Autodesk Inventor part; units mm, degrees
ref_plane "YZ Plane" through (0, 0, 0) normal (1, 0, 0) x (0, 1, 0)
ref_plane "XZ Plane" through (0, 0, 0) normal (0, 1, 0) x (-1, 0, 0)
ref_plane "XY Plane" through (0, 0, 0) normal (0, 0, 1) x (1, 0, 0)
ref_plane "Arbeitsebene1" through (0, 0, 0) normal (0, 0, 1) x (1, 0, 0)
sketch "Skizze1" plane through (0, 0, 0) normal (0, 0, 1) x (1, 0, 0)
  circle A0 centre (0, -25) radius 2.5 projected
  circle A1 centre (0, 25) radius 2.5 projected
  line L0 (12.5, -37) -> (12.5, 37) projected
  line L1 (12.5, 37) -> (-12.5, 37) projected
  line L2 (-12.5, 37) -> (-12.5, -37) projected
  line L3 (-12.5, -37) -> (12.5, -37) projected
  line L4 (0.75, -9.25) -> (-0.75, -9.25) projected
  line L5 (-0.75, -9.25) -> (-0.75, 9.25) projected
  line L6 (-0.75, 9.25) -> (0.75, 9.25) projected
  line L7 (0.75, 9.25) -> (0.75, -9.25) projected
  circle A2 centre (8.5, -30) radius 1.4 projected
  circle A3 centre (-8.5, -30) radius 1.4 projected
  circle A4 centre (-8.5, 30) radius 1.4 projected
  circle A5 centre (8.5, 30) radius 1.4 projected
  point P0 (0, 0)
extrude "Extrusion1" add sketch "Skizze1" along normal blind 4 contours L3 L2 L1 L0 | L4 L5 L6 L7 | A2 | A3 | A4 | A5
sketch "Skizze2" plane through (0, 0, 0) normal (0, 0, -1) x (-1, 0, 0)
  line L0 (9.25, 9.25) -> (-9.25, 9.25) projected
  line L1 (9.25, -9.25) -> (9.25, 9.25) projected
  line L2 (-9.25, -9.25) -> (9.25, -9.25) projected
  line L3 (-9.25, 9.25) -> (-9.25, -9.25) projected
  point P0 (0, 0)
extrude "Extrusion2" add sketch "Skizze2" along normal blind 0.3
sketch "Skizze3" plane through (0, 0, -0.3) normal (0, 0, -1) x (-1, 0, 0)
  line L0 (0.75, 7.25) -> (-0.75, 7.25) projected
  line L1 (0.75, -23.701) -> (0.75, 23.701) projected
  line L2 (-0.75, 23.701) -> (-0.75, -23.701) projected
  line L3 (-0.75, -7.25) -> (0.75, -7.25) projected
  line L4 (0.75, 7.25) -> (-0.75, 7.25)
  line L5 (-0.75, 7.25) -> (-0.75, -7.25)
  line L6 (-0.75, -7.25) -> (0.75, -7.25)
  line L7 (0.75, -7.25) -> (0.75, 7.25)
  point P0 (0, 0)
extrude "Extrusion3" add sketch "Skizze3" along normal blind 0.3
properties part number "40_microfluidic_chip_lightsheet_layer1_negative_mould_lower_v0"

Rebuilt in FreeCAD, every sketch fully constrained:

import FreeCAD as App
import Part
import Sketcher
from FreeCAD import Vector

doc = App.newDocument("Part")
body = doc.addObject("PartDesign::Body", "Body")

# Sketch on XY plane
sketch1 = body.newObject("Sketcher::SketchObject", "Sketch")
sketch1.AttachmentSupport = (doc.getObject("XY_Plane"), [""])
sketch1.MapMode = "FlatFace"
sketch1.addGeometry([
    Part.LineSegment(Vector(-12.5, -37, 0), Vector(12.5, -37, 0)),  # 0
    Part.LineSegment(Vector(12.5, -37, 0), Vector(12.5, 37, 0)),  # 1
    Part.LineSegment(Vector(12.5, 37, 0), Vector(-12.5, 37, 0)),  # 2
    Part.LineSegment(Vector(-12.5, 37, 0), Vector(-12.5, -37, 0)),  # 3
    Part.Circle(Vector(0, -25, 0), Vector(0, 0, 1), 2.5),  # 4
    Part.Circle(Vector(0, 25, 0), Vector(0, 0, 1), 2.5),  # 5
], False)
sketch1.addConstraint([
    Sketcher.Constraint("Coincident", 0, 2, 1, 1),
    Sketcher.Constraint("Coincident", 1, 2, 2, 1),
    Sketcher.Constraint("Coincident", 2, 2, 3, 1),
    Sketcher.Constraint("Coincident", 3, 2, 0, 1),
    Sketcher.Constraint("Horizontal", 0),
    Sketcher.Constraint("Vertical", 1),
    Sketcher.Constraint("Horizontal", 2),
    Sketcher.Constraint("Vertical", 3),
    Sketcher.Constraint("Equal", 4, 5),
    Sketcher.Constraint("Symmetric", 4, 3, 5, 3, -1, 1),
    Sketcher.Constraint("Symmetric", 0, 2, 2, 2, -1, 1),
    Sketcher.Constraint("PointOnObject", 4, 3, -2),
    Sketcher.Constraint("Diameter", 4, 5.0),
    Sketcher.Constraint("DistanceX", 0, 1, 0, 2, 25.0),
    Sketcher.Constraint("DistanceY", 1, 1, 1, 2, 74.0),
    Sketcher.Constraint("DistanceY", 4, 3, -1, 1, 25.0),
])
pad1 = body.newObject("PartDesign::Pad", "Pad")
pad1.Profile = sketch1
pad1.Length = 4

# Sketch on XY plane
sketch2 = body.newObject("Sketcher::SketchObject", "Sketch001")
sketch2.AttachmentSupport = (doc.getObject("XY_Plane"), [""])
sketch2.MapMode = "FlatFace"
sketch2.addGeometry([
    Part.LineSegment(Vector(-9, -9, 0), Vector(-9, 9, 0)),
    Part.LineSegment(Vector(-9, 9, 0), Vector(9, 9, 0)),
    Part.LineSegment(Vector(9, 9, 0), Vector(9, -9, 0)),
    Part.LineSegment(Vector(9, -9, 0), Vector(-9, -9, 0)),
], False)
sketch2.addConstraint([
    Sketcher.Constraint("Coincident", 0, 2, 1, 1),
    Sketcher.Constraint("Coincident", 1, 2, 2, 1),
    Sketcher.Constraint("Coincident", 2, 2, 3, 1),
    Sketcher.Constraint("Coincident", 3, 2, 0, 1),
    Sketcher.Constraint("Vertical", 0),
    Sketcher.Constraint("Horizontal", 1),
    Sketcher.Constraint("Vertical", 2),
    Sketcher.Constraint("Horizontal", 3),
    Sketcher.Constraint("Symmetric", 0, 2, 2, 2, -1, 1),
    Sketcher.Constraint("Equal", 3, 0),
    Sketcher.Constraint("DistanceX", 1, 1, 1, 2, 18.5),
])
pad2 = body.newObject("PartDesign::Pad", "Pad001")
pad2.Profile = sketch2
pad2.Length = 0.3
pad2.Reversed = True

# Sketch on XY plane
sketch3 = body.newObject("Sketcher::SketchObject", "Sketch002")
sketch3.AttachmentSupport = (doc.getObject("XY_Plane"), [""])
sketch3.MapMode = "FlatFace"
sketch3.AttachmentOffset = App.Placement(Vector(0, 0, -0.3), App.Rotation())
sketch3.addGeometry([
    Part.LineSegment(Vector(-0.8, -7.2, 0), Vector(-0.8, 7.2, 0)),
    Part.LineSegment(Vector(-0.8, 7.2, 0), Vector(0.8, 7.2, 0)),
    Part.LineSegment(Vector(0.8, 7.2, 0), Vector(0.8, -7.2, 0)),
    Part.LineSegment(Vector(0.8, -7.2, 0), Vector(-0.8, -7.2, 0)),
], False)
sketch3.addConstraint([
    Sketcher.Constraint("Coincident", 0, 2, 1, 1),
    Sketcher.Constraint("Coincident", 1, 2, 2, 1),
    Sketcher.Constraint("Coincident", 2, 2, 3, 1),
    Sketcher.Constraint("Coincident", 3, 2, 0, 1),
    Sketcher.Constraint("Vertical", 0),
    Sketcher.Constraint("Horizontal", 1),
    Sketcher.Constraint("Vertical", 2),
    Sketcher.Constraint("Horizontal", 3),
    Sketcher.Constraint("Symmetric", 0, 2, 2, 2, -1, 1),
    Sketcher.Constraint("DistanceX", 1, 1, 1, 2, 1.5),
    Sketcher.Constraint("DistanceY", 0, 1, 0, 2, 14.5),
])
pad3 = body.newObject("PartDesign::Pad", "Pad002")
pad3.Profile = sketch3
pad3.Length = 0.3
pad3.Reversed = True

doc.recompute()
